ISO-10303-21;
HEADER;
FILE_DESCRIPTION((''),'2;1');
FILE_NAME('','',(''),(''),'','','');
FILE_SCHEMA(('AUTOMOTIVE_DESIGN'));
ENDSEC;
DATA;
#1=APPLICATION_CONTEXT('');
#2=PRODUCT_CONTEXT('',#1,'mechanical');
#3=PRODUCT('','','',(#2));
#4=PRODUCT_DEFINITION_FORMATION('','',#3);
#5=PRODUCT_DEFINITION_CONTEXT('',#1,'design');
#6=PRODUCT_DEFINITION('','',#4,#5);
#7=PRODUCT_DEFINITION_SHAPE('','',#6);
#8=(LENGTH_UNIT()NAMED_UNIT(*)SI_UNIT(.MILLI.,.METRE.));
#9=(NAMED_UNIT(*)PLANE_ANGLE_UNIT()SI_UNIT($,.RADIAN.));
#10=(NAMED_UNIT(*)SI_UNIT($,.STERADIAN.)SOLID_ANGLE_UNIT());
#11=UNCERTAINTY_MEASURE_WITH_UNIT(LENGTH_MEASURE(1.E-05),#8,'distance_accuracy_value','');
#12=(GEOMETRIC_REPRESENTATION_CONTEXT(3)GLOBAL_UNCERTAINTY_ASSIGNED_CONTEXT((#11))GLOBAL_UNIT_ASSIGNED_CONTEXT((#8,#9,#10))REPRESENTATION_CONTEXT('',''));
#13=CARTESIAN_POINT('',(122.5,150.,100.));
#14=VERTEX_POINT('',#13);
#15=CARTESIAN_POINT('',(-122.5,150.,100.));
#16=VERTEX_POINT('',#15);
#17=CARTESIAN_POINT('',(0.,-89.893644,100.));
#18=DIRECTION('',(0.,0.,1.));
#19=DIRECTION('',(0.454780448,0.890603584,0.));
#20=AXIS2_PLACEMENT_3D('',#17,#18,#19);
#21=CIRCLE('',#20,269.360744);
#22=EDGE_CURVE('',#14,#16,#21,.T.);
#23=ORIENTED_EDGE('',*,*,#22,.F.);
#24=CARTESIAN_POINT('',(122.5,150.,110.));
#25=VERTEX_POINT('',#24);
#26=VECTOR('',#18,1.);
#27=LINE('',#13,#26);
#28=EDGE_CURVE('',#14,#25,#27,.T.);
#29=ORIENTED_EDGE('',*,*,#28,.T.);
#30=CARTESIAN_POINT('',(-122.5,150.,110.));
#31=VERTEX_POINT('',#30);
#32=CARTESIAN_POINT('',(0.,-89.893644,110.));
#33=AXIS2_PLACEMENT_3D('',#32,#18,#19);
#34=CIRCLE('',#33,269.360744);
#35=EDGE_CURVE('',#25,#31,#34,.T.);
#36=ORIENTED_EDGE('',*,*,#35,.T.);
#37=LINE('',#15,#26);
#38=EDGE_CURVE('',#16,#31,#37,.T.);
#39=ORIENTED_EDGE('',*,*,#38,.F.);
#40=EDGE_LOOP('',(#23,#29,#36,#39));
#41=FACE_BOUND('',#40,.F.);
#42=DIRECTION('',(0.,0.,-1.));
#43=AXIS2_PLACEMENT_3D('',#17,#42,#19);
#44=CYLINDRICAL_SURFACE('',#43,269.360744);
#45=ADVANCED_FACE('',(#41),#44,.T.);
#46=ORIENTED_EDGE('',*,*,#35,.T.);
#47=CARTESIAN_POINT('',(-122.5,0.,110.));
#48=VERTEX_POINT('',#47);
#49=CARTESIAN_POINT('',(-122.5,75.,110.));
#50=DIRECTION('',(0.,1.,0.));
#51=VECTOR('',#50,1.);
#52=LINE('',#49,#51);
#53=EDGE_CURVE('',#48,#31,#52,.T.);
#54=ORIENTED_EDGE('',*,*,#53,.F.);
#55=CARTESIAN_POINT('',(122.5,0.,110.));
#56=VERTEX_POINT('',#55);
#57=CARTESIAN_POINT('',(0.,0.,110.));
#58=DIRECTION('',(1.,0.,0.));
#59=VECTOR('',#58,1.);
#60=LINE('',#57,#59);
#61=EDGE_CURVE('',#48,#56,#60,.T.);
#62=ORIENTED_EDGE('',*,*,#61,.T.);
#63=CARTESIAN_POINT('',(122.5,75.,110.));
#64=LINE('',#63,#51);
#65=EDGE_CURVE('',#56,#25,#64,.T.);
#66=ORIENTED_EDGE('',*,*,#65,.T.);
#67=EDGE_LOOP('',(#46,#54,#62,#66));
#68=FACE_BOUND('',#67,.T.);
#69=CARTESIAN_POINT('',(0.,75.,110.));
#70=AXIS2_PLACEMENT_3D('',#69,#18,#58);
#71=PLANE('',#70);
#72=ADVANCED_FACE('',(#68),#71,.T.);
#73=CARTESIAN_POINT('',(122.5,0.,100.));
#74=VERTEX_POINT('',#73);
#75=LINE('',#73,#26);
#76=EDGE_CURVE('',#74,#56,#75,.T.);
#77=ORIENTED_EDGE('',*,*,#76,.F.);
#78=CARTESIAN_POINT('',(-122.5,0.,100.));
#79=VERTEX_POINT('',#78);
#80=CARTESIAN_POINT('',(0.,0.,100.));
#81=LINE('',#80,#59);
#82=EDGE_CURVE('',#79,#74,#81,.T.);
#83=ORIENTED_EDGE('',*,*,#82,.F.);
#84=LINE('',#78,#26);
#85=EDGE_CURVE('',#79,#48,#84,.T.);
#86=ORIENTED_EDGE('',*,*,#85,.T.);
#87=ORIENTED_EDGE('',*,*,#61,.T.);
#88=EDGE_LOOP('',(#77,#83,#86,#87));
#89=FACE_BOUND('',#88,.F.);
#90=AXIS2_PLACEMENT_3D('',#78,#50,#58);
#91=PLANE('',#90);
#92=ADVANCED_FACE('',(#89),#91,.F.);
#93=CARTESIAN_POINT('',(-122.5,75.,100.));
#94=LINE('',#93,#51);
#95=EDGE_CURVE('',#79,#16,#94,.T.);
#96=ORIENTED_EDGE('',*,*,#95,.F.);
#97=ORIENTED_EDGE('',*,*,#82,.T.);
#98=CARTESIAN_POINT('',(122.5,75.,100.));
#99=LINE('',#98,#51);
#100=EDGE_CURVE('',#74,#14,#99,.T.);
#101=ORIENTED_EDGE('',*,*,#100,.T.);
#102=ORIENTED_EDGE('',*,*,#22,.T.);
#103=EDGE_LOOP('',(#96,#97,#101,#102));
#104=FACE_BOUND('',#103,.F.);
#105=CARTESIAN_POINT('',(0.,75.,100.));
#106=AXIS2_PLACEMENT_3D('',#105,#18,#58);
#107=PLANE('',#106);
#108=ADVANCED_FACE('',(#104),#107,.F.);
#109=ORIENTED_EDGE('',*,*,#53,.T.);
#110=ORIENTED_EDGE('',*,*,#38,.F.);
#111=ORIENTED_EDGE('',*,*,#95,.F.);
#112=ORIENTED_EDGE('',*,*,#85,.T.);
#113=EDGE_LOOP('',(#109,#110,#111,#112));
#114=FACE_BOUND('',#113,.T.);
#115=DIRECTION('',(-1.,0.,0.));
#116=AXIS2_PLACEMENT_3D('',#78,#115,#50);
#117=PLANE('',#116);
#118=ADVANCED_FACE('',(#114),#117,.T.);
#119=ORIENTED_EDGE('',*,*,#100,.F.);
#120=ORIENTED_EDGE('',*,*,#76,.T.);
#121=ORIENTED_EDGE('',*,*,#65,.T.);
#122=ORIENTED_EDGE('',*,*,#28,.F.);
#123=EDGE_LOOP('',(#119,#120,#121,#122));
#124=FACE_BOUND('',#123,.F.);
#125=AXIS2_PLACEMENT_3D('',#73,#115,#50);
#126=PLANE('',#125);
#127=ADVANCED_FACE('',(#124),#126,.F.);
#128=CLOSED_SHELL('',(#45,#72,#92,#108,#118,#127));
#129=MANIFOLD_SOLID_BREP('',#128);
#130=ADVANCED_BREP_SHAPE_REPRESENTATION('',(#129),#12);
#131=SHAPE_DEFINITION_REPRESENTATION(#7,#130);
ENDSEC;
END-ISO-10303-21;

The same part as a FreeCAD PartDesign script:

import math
import FreeCAD as App
import Part
import Sketcher
Q = App.Units.Quantity

doc = App.newDocument("Part")
params = doc.addObject("Spreadsheet::Sheet", "Params")
for row, (alias, value) in enumerate([
    ("sketch1_width", "245 mm"),
    ("sketch1_height", "150 mm"),
    ("pad1_length", "10 mm"),
], start=1):
    params.set(f"A{row}", alias)
    params.set(f"B{row}", "=" + value)
    params.setAlias(f"B{row}", alias)

body = doc.addObject("PartDesign::Body", "Body")

sketch1 = body.newObject("Sketcher::SketchObject", "Sketch")
sketch1.AttachmentSupport = (doc.getObject("XY_Plane"), [""])
sketch1.MapMode = "FlatFace"
sketch1.AttachmentOffset = App.Placement(App.Vector(0, 0, 100), App.Rotation())
sketch1.addGeometry([
    Part.LineSegment(App.Vector(-122.5, 150, 0), App.Vector(-122.5, 0, 0)),
    Part.LineSegment(App.Vector(-122.5, 0, 0), App.Vector(122.5, 0, 0)),
    Part.LineSegment(App.Vector(122.5, 0, 0), App.Vector(122.5, 150, 0)),
    Part.ArcOfCircle(Part.Circle(App.Vector(0, -89.893644, 0), App.Vector(0, 0, 1), 269.360744), math.radians(62.949191), math.radians(117.050809)),
], False)
sketch1.addConstraint([
    Sketcher.Constraint("Coincident", 0, 2, 1, 1),
    Sketcher.Constraint("Coincident", 1, 2, 2, 1),
    Sketcher.Constraint("Coincident", 2, 2, 3, 1),
    Sketcher.Constraint("Coincident", 3, 2, 0, 1),
    Sketcher.Constraint("Vertical", 0),
    Sketcher.Constraint("Horizontal", 1),
    Sketcher.Constraint("Vertical", 2),
    Sketcher.Constraint("Symmetric", 0, 2, 1, 2, -1, 1),
    Sketcher.Constraint("PointOnObject", 3, 3, -2),
    Sketcher.Constraint("DistanceX", 1, 1, 1, 2, Q("245 mm")),
    Sketcher.Constraint("DistanceY", 0, 2, 0, 1, Q("150 mm")),
    Sketcher.Constraint("Radius", 3, Q("269.360744 mm")),
])
sketch1.setExpression("Constraints[9]", "Params.sketch1_width")
sketch1.setExpression("Constraints[10]", "Params.sketch1_height")
pad1 = body.newObject("PartDesign::Pad", "Pad")
pad1.Profile = sketch1
pad1.setExpression("Length", "Params.pad1_length")

doc.recompute()
